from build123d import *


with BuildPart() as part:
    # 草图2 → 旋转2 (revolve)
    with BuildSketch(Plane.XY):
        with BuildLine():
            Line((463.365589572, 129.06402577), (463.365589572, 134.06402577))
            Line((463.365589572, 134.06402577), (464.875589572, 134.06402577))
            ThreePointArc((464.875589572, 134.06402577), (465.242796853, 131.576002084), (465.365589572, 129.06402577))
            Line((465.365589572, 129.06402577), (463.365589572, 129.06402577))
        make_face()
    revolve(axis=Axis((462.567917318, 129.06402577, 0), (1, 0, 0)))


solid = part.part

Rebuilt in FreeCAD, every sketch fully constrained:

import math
import FreeCAD as App
import Part
import Sketcher

doc = App.newDocument("Part")
params = doc.addObject("Spreadsheet::Sheet", "Params")
for row, (alias, value) in enumerate([
    ("sketch1_width", "2 mm"),
    ("sketch1_height", "5 mm"),
    ("sketch1_width2", "1.51 mm"),
    ("revolution_angle", "360 deg"),
], start=1):
    params.set(f"A{row}", alias)
    params.set(f"B{row}", "=" + value)
    params.setAlias(f"B{row}", alias)

body = doc.addObject("PartDesign::Body", "Body")

# Sketch on XY plane
sketch1 = body.newObject("Sketcher::SketchObject", "Sketch")
sketch1.AttachmentSupport = (doc.getObject("XY_Plane"), [""])
sketch1.MapMode = "FlatFace"
sketch1.addGeometry([
    Part.LineSegment(App.Vector(463.4, 134.1, 0), App.Vector(463.4, 129.1, 0)),
    Part.LineSegment(App.Vector(463.4, 129.1, 0), App.Vector(465.4, 129.1, 0)),
    Part.ArcOfCircle(Part.Circle(App.Vector(439.6, 129.1, 0), App.Vector(0, 0, 1), 25.8), math.radians(0), math.radians(11.19)),
    Part.LineSegment(App.Vector(464.9, 134.1, 0), App.Vector(463.4, 134.1, 0)),
], False)
sketch1.addGeometry(Part.LineSegment(App.Vector(439.6, 129.1, 0), App.Vector(465.4, 129.1, 0)), True)  # axis
sketch1.addConstraint([
    Sketcher.Constraint("Coincident", 0, 2, 1, 1),
    Sketcher.Constraint("Coincident", 1, 2, 2, 1),
    Sketcher.Constraint("Coincident", 2, 2, 3, 1),
    Sketcher.Constraint("Coincident", 3, 2, 0, 1),
    Sketcher.Constraint("Vertical", 0),
    Sketcher.Constraint("Horizontal", 1),
    Sketcher.Constraint("Horizontal", 3),
    Sketcher.Constraint("Horizontal", 4),
    Sketcher.Constraint("Coincident", 4, 1, 2, 3),
    Sketcher.Constraint("Coincident", 4, 2, 1, 2),
    Sketcher.Constraint("DistanceX", 1, 1, 1, 2, 2.0),
    Sketcher.Constraint("DistanceY", 0, 2, 0, 1, 5.0),
    Sketcher.Constraint("DistanceX", 3, 2, 3, 1, 1.51),
    Sketcher.Constraint("DistanceX", -1, 1, 0, 2, 463.36559),
    Sketcher.Constraint("DistanceY", -1, 1, 2, 3, 129.064026),
])
sketch1.setExpression("Constraints[10]", "Params.sketch1_width")
sketch1.setExpression("Constraints[11]", "Params.sketch1_height")
sketch1.setExpression("Constraints[12]", "Params.sketch1_width2")
revolution = body.newObject("PartDesign::Revolution", "Revolution")
revolution.Profile = sketch1
revolution.ReferenceAxis = (sketch1, ["Axis0"])
revolution.setExpression("Angle", "Params.revolution_angle")

doc.recompute()
